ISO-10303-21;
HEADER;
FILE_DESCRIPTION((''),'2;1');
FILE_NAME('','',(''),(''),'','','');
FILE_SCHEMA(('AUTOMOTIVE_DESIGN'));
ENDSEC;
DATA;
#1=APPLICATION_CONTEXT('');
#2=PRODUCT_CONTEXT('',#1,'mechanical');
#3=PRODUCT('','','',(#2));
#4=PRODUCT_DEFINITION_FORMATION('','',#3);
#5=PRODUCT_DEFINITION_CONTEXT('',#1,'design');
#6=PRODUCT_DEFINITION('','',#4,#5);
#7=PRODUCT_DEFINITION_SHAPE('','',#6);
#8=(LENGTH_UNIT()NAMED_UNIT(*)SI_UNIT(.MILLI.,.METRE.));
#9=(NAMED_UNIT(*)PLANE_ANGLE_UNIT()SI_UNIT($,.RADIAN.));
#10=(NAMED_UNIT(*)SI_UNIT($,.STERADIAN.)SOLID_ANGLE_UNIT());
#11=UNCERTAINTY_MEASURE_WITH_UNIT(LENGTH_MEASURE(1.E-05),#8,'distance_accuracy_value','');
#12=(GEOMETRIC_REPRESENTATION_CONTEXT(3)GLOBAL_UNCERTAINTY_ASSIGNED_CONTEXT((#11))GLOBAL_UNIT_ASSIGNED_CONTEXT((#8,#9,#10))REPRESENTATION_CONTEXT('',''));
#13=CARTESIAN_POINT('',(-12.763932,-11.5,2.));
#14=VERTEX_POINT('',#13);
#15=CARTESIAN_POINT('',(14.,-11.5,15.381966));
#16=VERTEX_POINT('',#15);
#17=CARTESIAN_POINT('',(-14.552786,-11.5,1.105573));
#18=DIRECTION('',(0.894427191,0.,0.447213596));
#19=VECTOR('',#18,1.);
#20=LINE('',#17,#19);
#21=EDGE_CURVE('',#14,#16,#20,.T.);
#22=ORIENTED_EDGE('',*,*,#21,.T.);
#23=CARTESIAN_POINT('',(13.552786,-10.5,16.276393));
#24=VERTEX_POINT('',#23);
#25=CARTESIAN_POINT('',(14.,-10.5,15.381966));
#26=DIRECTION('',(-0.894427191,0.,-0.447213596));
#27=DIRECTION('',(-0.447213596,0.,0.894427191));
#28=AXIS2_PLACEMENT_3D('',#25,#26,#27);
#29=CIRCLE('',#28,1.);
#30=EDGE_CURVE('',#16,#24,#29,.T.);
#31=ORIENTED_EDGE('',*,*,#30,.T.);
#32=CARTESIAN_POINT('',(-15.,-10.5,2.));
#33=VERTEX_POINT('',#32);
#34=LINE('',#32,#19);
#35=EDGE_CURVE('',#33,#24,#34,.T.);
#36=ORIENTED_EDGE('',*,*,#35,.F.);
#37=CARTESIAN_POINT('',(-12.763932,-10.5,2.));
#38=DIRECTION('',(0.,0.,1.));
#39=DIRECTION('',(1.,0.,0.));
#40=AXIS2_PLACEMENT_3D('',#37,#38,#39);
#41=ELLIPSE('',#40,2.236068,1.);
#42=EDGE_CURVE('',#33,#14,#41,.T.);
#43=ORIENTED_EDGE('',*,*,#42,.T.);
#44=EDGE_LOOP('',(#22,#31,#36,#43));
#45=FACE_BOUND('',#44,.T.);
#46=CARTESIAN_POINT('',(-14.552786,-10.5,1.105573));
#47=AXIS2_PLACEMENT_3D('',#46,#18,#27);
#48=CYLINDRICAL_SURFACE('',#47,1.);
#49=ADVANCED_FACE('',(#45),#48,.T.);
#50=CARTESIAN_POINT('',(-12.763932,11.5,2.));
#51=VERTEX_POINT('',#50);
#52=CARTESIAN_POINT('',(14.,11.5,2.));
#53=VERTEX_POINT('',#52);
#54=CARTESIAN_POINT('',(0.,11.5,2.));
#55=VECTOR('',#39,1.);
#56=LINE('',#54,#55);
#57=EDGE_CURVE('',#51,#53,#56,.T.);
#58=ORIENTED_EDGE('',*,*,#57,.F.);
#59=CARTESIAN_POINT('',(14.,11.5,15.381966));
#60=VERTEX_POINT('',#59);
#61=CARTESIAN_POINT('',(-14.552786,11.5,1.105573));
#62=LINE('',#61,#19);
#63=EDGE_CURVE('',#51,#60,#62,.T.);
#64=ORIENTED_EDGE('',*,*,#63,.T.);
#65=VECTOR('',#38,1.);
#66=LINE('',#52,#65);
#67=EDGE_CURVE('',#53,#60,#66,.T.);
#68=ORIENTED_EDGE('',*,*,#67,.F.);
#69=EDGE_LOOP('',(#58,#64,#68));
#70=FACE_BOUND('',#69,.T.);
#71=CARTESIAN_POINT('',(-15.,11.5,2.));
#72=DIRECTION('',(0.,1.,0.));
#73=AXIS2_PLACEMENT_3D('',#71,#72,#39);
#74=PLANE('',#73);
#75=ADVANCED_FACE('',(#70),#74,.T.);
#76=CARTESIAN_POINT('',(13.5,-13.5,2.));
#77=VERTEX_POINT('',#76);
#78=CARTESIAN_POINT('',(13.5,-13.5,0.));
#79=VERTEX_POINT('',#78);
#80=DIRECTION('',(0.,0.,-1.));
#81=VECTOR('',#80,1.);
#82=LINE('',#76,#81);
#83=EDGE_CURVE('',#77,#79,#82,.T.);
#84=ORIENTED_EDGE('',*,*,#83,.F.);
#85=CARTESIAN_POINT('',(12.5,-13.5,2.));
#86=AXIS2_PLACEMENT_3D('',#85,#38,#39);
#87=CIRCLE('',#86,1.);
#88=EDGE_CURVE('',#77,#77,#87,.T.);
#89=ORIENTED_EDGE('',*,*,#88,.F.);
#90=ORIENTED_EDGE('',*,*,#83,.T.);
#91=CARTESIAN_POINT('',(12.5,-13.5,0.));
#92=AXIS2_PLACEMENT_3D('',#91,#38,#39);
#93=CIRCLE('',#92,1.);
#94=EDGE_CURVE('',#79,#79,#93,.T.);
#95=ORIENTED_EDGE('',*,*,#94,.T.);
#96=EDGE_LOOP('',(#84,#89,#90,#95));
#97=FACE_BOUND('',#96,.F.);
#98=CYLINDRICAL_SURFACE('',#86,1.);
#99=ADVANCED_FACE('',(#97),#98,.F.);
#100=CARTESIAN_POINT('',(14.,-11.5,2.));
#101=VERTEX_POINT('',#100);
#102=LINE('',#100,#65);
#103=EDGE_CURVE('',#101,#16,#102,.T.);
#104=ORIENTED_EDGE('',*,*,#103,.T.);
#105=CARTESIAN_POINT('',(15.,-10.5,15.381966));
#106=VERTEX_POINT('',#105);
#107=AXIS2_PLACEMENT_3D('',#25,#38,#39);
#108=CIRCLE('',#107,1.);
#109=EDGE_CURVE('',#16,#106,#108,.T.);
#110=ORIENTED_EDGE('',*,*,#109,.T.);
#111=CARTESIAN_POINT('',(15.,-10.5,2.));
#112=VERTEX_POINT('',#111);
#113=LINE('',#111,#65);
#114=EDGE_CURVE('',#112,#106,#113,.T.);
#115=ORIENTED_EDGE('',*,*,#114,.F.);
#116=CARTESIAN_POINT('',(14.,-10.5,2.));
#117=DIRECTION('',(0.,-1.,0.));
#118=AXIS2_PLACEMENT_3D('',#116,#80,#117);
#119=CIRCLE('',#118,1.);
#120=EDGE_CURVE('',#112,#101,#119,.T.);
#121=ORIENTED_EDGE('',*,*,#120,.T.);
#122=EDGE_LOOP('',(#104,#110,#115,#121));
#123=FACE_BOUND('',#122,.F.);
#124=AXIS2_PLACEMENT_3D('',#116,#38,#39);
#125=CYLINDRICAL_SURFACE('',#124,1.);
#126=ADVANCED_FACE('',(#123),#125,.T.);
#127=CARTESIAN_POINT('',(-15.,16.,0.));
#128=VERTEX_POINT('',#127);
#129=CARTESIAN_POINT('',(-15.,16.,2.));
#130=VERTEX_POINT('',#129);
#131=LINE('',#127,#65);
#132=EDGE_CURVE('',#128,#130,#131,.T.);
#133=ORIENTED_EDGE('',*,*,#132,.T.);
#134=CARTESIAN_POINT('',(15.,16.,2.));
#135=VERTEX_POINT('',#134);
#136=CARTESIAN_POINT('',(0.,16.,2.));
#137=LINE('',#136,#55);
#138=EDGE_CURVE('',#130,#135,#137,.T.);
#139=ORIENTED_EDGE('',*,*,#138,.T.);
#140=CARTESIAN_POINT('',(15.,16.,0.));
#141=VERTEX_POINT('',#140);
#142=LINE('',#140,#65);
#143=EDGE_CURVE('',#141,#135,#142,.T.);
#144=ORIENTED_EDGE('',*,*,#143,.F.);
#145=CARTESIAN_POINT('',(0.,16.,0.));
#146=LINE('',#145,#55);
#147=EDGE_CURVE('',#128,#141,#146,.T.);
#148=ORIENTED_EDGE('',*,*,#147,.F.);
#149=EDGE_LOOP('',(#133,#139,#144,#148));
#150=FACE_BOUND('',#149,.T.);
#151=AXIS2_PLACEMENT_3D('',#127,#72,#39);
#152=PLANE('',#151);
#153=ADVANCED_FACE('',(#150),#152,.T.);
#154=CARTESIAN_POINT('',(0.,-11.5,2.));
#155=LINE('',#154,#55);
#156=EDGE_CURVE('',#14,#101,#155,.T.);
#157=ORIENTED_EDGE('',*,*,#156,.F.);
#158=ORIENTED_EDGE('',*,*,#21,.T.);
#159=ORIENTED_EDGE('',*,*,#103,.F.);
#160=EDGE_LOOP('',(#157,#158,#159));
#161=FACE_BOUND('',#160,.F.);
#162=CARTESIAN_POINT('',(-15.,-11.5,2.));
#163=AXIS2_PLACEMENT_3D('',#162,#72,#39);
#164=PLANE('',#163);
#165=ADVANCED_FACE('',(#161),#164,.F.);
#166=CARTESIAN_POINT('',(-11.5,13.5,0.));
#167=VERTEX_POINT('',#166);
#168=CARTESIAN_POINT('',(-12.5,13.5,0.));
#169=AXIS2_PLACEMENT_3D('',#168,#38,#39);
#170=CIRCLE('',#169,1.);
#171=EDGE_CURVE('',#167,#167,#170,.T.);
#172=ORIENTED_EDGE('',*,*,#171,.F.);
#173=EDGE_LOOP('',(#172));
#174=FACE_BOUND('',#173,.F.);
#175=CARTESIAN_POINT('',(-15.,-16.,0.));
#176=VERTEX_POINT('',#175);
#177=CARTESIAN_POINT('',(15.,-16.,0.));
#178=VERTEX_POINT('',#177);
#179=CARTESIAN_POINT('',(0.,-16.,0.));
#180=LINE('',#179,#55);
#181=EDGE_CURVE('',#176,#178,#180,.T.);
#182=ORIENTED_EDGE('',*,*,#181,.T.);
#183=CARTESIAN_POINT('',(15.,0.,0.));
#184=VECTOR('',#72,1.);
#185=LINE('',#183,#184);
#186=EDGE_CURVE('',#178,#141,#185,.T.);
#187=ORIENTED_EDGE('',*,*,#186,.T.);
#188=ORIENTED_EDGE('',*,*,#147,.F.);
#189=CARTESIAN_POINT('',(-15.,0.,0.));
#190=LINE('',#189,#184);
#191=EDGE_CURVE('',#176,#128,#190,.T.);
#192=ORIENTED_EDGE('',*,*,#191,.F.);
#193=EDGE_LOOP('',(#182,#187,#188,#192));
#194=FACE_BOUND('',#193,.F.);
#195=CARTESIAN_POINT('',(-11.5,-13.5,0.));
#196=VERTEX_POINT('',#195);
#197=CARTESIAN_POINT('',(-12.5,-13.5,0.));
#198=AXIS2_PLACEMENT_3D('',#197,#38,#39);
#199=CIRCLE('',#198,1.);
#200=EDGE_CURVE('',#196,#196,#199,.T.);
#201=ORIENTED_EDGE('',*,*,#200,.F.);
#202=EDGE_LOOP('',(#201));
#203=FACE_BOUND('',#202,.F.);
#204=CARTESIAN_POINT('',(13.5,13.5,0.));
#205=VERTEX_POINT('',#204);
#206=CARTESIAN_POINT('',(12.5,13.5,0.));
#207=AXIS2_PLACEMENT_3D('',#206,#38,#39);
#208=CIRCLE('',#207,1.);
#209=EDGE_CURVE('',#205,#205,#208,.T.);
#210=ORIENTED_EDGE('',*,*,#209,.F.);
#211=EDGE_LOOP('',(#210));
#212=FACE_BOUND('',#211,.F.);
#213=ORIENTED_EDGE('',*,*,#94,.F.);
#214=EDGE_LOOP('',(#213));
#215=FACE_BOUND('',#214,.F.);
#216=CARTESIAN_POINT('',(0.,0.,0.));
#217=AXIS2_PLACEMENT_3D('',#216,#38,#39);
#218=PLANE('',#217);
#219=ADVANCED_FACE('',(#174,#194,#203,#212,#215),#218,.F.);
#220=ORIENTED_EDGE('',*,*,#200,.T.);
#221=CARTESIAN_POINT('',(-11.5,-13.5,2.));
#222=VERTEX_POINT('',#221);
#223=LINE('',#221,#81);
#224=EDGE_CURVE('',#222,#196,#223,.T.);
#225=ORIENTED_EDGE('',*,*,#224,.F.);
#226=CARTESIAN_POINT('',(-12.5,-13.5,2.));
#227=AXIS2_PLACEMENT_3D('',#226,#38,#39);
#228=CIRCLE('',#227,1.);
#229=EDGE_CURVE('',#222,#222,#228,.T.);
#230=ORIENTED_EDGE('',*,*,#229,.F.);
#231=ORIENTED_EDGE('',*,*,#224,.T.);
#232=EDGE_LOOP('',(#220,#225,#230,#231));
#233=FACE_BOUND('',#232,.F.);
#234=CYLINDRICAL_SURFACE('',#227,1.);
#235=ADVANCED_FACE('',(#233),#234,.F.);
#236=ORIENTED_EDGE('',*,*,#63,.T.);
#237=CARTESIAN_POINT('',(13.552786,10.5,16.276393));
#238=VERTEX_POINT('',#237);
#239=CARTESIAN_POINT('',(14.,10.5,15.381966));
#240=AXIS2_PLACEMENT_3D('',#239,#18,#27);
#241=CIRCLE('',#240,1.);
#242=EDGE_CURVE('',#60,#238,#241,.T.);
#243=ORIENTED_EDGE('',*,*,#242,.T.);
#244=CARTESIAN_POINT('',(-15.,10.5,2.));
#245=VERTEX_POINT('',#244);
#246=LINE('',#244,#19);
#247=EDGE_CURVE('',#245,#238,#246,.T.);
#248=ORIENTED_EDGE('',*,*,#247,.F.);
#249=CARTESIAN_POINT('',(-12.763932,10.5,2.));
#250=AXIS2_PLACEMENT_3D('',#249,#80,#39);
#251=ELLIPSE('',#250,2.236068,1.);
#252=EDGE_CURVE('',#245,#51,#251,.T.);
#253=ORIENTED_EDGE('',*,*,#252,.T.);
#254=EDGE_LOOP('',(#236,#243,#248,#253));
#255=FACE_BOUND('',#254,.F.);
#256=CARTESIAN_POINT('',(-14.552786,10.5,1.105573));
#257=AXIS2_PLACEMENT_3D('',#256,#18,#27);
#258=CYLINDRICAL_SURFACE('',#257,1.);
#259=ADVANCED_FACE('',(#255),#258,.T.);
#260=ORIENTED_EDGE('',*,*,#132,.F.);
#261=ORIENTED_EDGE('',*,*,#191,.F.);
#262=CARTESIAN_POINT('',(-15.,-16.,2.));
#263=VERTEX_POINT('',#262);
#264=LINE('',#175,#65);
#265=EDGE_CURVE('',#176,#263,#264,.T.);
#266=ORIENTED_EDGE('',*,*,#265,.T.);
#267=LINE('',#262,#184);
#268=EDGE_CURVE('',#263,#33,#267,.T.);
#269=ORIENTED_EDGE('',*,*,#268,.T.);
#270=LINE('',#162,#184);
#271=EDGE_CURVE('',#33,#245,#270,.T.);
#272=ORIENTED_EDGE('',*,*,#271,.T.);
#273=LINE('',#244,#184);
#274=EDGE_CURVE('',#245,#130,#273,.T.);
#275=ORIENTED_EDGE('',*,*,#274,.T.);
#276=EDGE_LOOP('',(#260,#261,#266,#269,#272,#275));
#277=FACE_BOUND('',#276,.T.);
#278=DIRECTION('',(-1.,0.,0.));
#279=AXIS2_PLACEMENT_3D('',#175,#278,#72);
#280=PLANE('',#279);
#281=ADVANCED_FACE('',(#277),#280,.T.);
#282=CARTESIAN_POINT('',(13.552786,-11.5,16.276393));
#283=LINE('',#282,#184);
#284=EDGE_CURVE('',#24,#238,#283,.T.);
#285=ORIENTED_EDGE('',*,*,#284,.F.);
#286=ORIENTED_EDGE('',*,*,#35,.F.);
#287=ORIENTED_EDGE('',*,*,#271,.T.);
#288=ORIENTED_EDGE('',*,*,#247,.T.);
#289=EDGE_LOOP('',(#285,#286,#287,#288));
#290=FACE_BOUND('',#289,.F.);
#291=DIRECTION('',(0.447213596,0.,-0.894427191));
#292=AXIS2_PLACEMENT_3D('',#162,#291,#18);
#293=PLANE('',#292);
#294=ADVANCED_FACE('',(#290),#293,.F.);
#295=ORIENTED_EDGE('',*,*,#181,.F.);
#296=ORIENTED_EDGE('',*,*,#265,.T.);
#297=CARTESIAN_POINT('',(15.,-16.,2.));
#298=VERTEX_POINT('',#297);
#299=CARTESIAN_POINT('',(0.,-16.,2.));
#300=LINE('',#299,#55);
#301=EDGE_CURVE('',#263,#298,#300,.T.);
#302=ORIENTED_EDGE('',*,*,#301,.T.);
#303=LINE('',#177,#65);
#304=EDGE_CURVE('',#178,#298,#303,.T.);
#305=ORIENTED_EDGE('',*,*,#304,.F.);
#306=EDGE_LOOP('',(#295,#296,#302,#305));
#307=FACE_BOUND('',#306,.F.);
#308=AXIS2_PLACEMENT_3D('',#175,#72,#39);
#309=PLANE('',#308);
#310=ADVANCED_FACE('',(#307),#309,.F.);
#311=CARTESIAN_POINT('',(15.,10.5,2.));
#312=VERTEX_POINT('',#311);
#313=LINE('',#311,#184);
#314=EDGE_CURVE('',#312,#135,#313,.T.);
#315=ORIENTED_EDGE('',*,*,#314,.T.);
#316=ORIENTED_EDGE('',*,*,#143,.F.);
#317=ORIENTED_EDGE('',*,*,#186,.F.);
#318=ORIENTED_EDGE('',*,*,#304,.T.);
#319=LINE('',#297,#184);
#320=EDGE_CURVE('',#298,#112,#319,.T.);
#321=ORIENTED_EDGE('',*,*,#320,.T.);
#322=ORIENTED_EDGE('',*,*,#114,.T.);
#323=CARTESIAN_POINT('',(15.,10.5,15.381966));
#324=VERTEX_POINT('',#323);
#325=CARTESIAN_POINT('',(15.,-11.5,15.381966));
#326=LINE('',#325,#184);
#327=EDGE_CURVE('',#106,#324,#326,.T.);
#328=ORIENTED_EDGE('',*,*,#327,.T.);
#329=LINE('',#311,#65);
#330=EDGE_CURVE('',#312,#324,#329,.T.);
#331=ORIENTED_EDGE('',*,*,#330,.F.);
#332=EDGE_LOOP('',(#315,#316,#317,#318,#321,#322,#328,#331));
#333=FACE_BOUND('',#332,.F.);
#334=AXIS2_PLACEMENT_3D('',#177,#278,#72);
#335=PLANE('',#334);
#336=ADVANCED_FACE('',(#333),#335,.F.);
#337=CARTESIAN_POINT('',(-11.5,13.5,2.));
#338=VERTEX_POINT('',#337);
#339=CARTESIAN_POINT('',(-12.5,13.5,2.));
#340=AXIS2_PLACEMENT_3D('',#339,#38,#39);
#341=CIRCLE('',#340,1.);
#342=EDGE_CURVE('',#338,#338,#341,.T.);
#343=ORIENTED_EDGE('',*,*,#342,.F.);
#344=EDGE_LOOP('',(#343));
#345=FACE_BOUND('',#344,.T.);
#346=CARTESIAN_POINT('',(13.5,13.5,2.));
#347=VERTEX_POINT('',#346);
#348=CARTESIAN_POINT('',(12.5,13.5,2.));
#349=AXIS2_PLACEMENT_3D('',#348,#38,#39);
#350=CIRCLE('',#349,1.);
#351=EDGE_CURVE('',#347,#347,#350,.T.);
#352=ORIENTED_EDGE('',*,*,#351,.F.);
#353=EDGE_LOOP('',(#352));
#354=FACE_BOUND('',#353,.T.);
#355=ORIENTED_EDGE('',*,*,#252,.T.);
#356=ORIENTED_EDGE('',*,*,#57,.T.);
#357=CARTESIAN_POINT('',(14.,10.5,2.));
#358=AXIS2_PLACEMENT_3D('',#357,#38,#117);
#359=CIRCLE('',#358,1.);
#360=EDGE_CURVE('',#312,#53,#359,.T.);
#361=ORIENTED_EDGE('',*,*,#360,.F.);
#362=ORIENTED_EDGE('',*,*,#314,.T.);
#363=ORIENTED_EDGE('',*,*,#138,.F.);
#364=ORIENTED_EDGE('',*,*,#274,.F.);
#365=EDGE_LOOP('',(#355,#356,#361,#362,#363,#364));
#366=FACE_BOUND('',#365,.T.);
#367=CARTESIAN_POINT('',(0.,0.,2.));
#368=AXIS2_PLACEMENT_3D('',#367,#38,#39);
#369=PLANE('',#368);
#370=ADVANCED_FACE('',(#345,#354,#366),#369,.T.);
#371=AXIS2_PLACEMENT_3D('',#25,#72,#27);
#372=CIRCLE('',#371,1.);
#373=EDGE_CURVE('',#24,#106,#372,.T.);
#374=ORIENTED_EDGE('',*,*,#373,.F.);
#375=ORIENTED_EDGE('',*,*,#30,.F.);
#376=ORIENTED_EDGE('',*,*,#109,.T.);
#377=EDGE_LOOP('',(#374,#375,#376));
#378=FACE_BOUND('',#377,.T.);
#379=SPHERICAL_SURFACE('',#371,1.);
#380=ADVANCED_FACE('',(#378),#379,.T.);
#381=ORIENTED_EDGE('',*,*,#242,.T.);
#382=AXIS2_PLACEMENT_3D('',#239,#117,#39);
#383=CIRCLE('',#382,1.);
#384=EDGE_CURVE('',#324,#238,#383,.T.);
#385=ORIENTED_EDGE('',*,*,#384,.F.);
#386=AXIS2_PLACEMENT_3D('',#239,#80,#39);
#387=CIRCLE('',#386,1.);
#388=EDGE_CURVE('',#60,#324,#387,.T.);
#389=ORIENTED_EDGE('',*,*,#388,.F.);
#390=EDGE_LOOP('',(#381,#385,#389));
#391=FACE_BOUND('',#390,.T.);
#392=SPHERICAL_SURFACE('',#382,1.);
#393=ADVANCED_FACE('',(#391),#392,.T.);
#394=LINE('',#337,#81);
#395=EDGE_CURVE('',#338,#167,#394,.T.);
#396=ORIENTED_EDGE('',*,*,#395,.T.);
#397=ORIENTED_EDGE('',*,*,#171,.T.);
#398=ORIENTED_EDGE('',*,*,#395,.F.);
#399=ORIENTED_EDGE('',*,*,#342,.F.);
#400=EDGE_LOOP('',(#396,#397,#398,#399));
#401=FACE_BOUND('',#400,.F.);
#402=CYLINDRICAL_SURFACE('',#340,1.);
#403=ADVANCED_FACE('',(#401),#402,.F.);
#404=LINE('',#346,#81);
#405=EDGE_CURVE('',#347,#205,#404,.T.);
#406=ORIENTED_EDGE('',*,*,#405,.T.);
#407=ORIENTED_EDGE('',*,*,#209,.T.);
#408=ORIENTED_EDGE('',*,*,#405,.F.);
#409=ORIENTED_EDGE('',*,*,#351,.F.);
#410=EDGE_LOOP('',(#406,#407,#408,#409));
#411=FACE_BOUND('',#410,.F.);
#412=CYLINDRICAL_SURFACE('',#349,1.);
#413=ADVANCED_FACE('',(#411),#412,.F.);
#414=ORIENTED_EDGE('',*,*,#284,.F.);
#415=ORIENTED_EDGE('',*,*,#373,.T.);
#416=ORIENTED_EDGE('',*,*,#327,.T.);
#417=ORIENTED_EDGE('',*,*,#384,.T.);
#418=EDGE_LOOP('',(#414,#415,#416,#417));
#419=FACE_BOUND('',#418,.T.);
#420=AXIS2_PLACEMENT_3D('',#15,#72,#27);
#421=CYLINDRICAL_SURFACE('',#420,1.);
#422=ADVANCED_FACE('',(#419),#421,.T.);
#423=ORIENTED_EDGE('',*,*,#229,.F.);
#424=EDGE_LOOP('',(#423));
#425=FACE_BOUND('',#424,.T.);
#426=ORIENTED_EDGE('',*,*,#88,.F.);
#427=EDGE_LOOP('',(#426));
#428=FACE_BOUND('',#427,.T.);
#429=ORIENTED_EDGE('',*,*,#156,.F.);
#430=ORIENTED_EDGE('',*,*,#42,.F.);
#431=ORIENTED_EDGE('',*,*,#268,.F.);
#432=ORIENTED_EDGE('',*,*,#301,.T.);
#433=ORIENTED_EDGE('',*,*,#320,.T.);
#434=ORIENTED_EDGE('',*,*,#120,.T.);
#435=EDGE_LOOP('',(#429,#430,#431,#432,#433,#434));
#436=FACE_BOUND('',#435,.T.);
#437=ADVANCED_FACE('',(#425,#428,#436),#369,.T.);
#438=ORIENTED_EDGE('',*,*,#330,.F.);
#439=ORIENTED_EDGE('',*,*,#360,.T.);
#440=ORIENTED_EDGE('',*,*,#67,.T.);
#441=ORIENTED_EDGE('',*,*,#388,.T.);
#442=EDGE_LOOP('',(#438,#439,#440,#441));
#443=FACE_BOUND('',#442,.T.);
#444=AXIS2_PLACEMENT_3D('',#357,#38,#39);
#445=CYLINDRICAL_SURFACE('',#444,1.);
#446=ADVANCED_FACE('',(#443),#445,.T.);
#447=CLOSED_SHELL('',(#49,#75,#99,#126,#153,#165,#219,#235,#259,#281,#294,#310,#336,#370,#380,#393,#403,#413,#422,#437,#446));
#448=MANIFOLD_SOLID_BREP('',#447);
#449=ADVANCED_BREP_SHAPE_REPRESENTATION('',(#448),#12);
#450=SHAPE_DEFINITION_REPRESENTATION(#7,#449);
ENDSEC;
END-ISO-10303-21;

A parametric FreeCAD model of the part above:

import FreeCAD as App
import Part
import Sketcher

V = App.Vector


def edges_at(feature, points):
    """Names of the edges that pass closest to the given points."""
    edges = feature.Shape.Edges
    near = lambda p: min(range(len(edges)), key=lambda i: edges[i].distToShape(Part.Vertex(*p))[0])
    return sorted({f"Edge{near(p) + 1}" for p in points})

doc = App.newDocument("Part")
body = doc.addObject("PartDesign::Body", "Body")

# Sketch on XY plane
sketch1 = doc.addObject("Sketcher::SketchObject", "Sketch")
body.addObject(sketch1)
sketch1.AttachmentSupport = (doc.XY_Plane, [""])
sketch1.MapMode = "FlatFace"
sketch1.addGeometry([
    Part.LineSegment(V(-15, 16, 0), V(-15, -16, 0)),
    Part.LineSegment(V(-15, -16, 0), V(15, -16, 0)),
    Part.LineSegment(V(15, -16, 0), V(15, 16, 0)),
    Part.LineSegment(V(15, 16, 0), V(-15, 16, 0)),
], False)
sketch1.addConstraint([
    Sketcher.Constraint("Coincident", 0, 2, 1, 1),
    Sketcher.Constraint("Coincident", 1, 2, 2, 1),
    Sketcher.Constraint("Coincident", 2, 2, 3, 1),
    Sketcher.Constraint("Coincident", 3, 2, 0, 1),
    Sketcher.Constraint("Vertical", 0),
    Sketcher.Constraint("Horizontal", 1),
    Sketcher.Constraint("Vertical", 2),
    Sketcher.Constraint("Horizontal", 3),
    Sketcher.Constraint("Symmetric", 0, 2, 2, 2, -1, 1),
    Sketcher.Constraint("DistanceX", 1, 1, 1, 2, 30.0),
    Sketcher.Constraint("DistanceY", 0, 2, 0, 1, 32.0),
])
pad1 = doc.addObject("PartDesign::Pad", "Pad")
body.addObject(pad1)
pad1.Profile = sketch1
pad1.Length = 2

# Sketch on XY plane
sketch2 = doc.addObject("Sketcher::SketchObject", "Sketch001")
body.addObject(sketch2)
sketch2.AttachmentSupport = (doc.XY_Plane, [""])
sketch2.MapMode = "FlatFace"
sketch2.AttachmentOffset = App.Placement(V(0, 0, 2), App.Rotation())
sketch2.addGeometry([
    Part.Circle(V(12.5, 13.5, 0), V(0, 0, 1), 1),
    Part.Circle(V(-12.5, 13.5, 0), V(0, 0, 1), 1),
    Part.Circle(V(-12.5, -13.5, 0), V(0, 0, 1), 1),
    Part.Circle(V(12.5, -13.5, 0), V(0, 0, 1), 1),
], False)
sketch2.addConstraint([
    Sketcher.Constraint("Equal", 0, 1),
    Sketcher.Constraint("Equal", 1, 2),
    Sketcher.Constraint("Equal", 2, 3),
    Sketcher.Constraint("Symmetric", 0, 3, 2, 3, -1, 1),
    Sketcher.Constraint("Symmetric", 1, 3, 3, 3, -1, 1),
    Sketcher.Constraint("Symmetric", 0, 3, 1, 3, -2),
    Sketcher.Constraint("Diameter", 0, 2.0),
    Sketcher.Constraint("DistanceX", 1, 3, 0, 3, 25.0),
    Sketcher.Constraint("DistanceY", 2, 3, 1, 3, 27.0),
])
pocket1 = doc.addObject("PartDesign::Pocket", "Pocket")
body.addObject(pocket1)
pocket1.Profile = sketch2
pocket1.Length = 2

# Sketch on XY plane
sketch3 = doc.addObject("Sketcher::SketchObject", "Sketch002")
body.addObject(sketch3)
sketch3.AttachmentSupport = (doc.XY_Plane, [""])
sketch3.MapMode = "FlatFace"
sketch3.AttachmentOffset = App.Placement(V(0, 0, 2), App.Rotation())
sketch3.addGeometry([
    Part.LineSegment(V(-15, 11.5, 0), V(-15, -11.5, 0)),
    Part.LineSegment(V(-15, -11.5, 0), V(15, -11.5, 0)),
    Part.LineSegment(V(15, -11.5, 0), V(15, 11.5, 0)),
    Part.LineSegment(V(15, 11.5, 0), V(-15, 11.5, 0)),
], False)
sketch3.addConstraint([
    Sketcher.Constraint("Coincident", 0, 2, 1, 1),
    Sketcher.Constraint("Coincident", 1, 2, 2, 1),
    Sketcher.Constraint("Coincident", 2, 2, 3, 1),
    Sketcher.Constraint("Coincident", 3, 2, 0, 1),
    Sketcher.Constraint("Vertical", 0),
    Sketcher.Constraint("Horizontal", 1),
    Sketcher.Constraint("Vertical", 2),
    Sketcher.Constraint("Horizontal", 3),
    Sketcher.Constraint("Symmetric", 0, 2, 2, 2, -1, 1),
    Sketcher.Constraint("DistanceX", 1, 1, 1, 2, 30.0),
    Sketcher.Constraint("DistanceY", 0, 2, 0, 1, 23.0),
])
pad2 = doc.addObject("PartDesign::Pad", "Pad001")
body.addObject(pad2)
pad2.Profile = sketch3
pad2.Length = 15

# Sketch on XZ plane
sketch4 = doc.addObject("Sketcher::SketchObject", "Sketch003")
body.addObject(sketch4)
sketch4.AttachmentSupport = (doc.XZ_Plane, [""])
sketch4.MapMode = "FlatFace"
sketch4.AttachmentOffset = App.Placement(V(0, 0, 11.5), App.Rotation())
sketch4.addGeometry([
    Part.LineSegment(V(-15, 2, 0), V(15, 17, 0)),
    Part.LineSegment(V(15, 17, 0), V(-15, 17, 0)),
    Part.LineSegment(V(-15, 17, 0), V(-15, 2, 0)),
], False)
sketch4.addConstraint([
    Sketcher.Constraint("Coincident", 0, 2, 1, 1),
    Sketcher.Constraint("Coincident", 1, 2, 2, 1),
    Sketcher.Constraint("Coincident", 2, 2, 0, 1),
    Sketcher.Constraint("Horizontal", 1),
    Sketcher.Constraint("Vertical", 2),
    Sketcher.Constraint("DistanceX", 1, 2, 1, 1, 30.0),
    Sketcher.Constraint("DistanceY", 2, 2, 2, 1, 15.0),
    Sketcher.Constraint("DistanceX", -1, 1, 0, 2, 15.0),
    Sketcher.Constraint("DistanceY", -1, 1, 0, 2, 17.0),
])
pocket2 = doc.addObject("PartDesign::Pocket", "Pocket001")
body.addObject(pocket2)
pocket2.Profile = sketch4
pocket2.Length = 23
doc.recompute()

fillet = doc.addObject("PartDesign::Fillet", "Fillet")
body.addObject(fillet)
fillet.Base = (pocket2, edges_at(pocket2, [
    (15, -11.5, 9.5),
    (15, 0, 17),
    (0, -11.5, 9.5),
    (15, 11.5, 9.5),
    (0, 11.5, 9.5),
]))
fillet.Radius = 1

doc.recompute()
